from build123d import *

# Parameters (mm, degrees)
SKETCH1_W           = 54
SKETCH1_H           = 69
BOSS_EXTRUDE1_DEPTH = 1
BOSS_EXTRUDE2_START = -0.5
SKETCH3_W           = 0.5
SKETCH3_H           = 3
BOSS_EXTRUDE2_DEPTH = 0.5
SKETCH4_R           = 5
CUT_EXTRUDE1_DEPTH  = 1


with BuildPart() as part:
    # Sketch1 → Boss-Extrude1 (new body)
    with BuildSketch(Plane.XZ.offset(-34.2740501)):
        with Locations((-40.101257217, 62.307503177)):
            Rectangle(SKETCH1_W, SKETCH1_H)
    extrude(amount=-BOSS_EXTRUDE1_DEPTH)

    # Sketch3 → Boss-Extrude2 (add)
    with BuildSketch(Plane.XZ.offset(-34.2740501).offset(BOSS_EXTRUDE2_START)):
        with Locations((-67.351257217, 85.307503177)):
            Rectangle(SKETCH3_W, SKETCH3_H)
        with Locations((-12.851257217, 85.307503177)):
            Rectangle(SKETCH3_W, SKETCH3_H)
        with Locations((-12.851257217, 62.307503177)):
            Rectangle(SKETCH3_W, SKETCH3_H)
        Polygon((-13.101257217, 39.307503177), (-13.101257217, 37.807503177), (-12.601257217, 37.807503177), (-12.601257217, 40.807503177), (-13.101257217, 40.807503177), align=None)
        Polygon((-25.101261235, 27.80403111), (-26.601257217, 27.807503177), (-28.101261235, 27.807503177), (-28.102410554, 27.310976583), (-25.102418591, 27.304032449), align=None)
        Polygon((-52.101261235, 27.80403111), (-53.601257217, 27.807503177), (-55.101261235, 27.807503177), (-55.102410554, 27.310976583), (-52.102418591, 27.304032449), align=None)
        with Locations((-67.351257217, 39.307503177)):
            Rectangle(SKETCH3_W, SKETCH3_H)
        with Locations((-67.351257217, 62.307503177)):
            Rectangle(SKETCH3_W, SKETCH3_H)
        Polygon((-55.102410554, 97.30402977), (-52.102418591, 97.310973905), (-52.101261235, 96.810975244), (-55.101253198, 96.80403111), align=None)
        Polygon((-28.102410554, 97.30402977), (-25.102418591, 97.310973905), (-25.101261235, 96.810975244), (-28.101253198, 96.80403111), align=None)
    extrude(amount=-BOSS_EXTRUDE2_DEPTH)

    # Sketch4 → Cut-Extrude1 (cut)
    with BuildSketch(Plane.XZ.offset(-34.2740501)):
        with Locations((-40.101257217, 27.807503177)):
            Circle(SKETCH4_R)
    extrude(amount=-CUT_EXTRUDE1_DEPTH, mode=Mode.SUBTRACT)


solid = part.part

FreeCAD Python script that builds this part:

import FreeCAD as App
import Part
import Sketcher
from FreeCAD import Vector

doc = App.newDocument("Part")
body = doc.addObject("PartDesign::Body", "Body")

sketch1 = body.newObject("Sketcher::SketchObject", "Sketch")
sketch1.AttachmentSupport = (doc.getObject("XZ_Plane"), [""])
sketch1.MapMode = "FlatFace"
sketch1.AttachmentOffset = App.Placement(Vector(0, 0, -34.27405), App.Rotation())
sketch1.addGeometry([
    Part.LineSegment(Vector(-67.101257, 96.807503, 0), Vector(-67.101257, 27.807503, 0)),
    Part.LineSegment(Vector(-67.101257, 27.807503, 0), Vector(-13.101257, 27.807503, 0)),
    Part.LineSegment(Vector(-13.101257, 27.807503, 0), Vector(-13.101257, 96.807503, 0)),
    Part.LineSegment(Vector(-13.101257, 96.807503, 0), Vector(-67.101257, 96.807503, 0)),
], False)
sketch1.addConstraint([
    Sketcher.Constraint("Coincident", 0, 2, 1, 1),
    Sketcher.Constraint("Coincident", 1, 2, 2, 1),
    Sketcher.Constraint("Coincident", 2, 2, 3, 1),
    Sketcher.Constraint("Coincident", 3, 2, 0, 1),
    Sketcher.Constraint("Vertical", 0),
    Sketcher.Constraint("Horizontal", 1),
    Sketcher.Constraint("Vertical", 2),
    Sketcher.Constraint("Horizontal", 3),
    Sketcher.Constraint("DistanceX", 1, 1, 1, 2, 54.0),
    Sketcher.Constraint("DistanceY", 0, 2, 0, 1, 69.0),
    Sketcher.Constraint("DistanceX", 0, 2, -1, 1, 67.101257),
    Sketcher.Constraint("DistanceY", -1, 1, 0, 2, 27.807503),
])
pad1 = body.newObject("PartDesign::Pad", "Pad")
pad1.Profile = sketch1
pad1.Length = 1
pad1.Reversed = True

sketch2 = body.newObject("Sketcher::SketchObject", "Sketch001")
sketch2.AttachmentSupport = (doc.getObject("XZ_Plane"), [""])
sketch2.MapMode = "FlatFace"
sketch2.AttachmentOffset = App.Placement(Vector(0, 0, -34.77405), App.Rotation())
sketch2.addGeometry([
    Part.LineSegment(Vector(-67.601257, 86.807503, 0), Vector(-67.601257, 83.807503, 0)),
    Part.LineSegment(Vector(-67.601257, 83.807503, 0), Vector(-67.101257, 83.807503, 0)),
    Part.LineSegment(Vector(-67.101257, 83.807503, 0), Vector(-67.101257, 86.807503, 0)),
    Part.LineSegment(Vector(-67.101257, 86.807503, 0), Vector(-67.601257, 86.807503, 0)),
    Part.LineSegment(Vector(-13.101257, 86.807503, 0), Vector(-13.101257, 83.807503, 0)),
    Part.LineSegment(Vector(-13.101257, 83.807503, 0), Vector(-12.601257, 83.807503, 0)),
    Part.LineSegment(Vector(-12.601257, 83.807503, 0), Vector(-12.601257, 86.807503, 0)),
    Part.LineSegment(Vector(-12.601257, 86.807503, 0), Vector(-13.101257, 86.807503, 0)),
    Part.LineSegment(Vector(-13.101257, 63.807503, 0), Vector(-13.101257, 60.807503, 0)),
    Part.LineSegment(Vector(-13.101257, 60.807503, 0), Vector(-12.601257, 60.807503, 0)),
    Part.LineSegment(Vector(-12.601257, 60.807503, 0), Vector(-12.601257, 63.807503, 0)),
    Part.LineSegment(Vector(-12.601257, 63.807503, 0), Vector(-13.101257, 63.807503, 0)),
    Part.LineSegment(Vector(-13.101257, 37.807503, 0), Vector(-12.601257, 37.807503, 0)),
    Part.LineSegment(Vector(-12.601257, 37.807503, 0), Vector(-12.601257, 40.807503, 0)),
    Part.LineSegment(Vector(-12.601257, 40.807503, 0), Vector(-13.101257, 40.807503, 0)),
    Part.LineSegment(Vector(-13.101257, 40.807503, 0), Vector(-13.101257, 37.807503, 0)),
    Part.LineSegment(Vector(-25.101261, 27.804031, 0), Vector(-26.601257, 27.807503, 0)),
    Part.LineSegment(Vector(-26.601257, 27.807503, 0), Vector(-28.101261, 27.807503, 0)),
    Part.LineSegment(Vector(-28.101261, 27.807503, 0), Vector(-28.102411, 27.310977, 0)),
    Part.LineSegment(Vector(-28.102411, 27.310977, 0), Vector(-25.102419, 27.304032, 0)),
    Part.LineSegment(Vector(-25.102419, 27.304032, 0), Vector(-25.101261, 27.804031, 0)),
    Part.LineSegment(Vector(-52.101261, 27.804031, 0), Vector(-53.601257, 27.807503, 0)),
    Part.LineSegment(Vector(-53.601257, 27.807503, 0), Vector(-55.101261, 27.807503, 0)),
    Part.LineSegment(Vector(-55.101261, 27.807503, 0), Vector(-55.102411, 27.310977, 0)),
    Part.LineSegment(Vector(-55.102411, 27.310977, 0), Vector(-52.102419, 27.304032, 0)),
    Part.LineSegment(Vector(-52.102419, 27.304032, 0), Vector(-52.101261, 27.804031, 0)),
    Part.LineSegment(Vector(-67.601257, 40.807503, 0), Vector(-67.601257, 37.807503, 0)),
    Part.LineSegment(Vector(-67.601257, 37.807503, 0), Vector(-67.101257, 37.807503, 0)),
    Part.LineSegment(Vector(-67.101257, 37.807503, 0), Vector(-67.101257, 40.807503, 0)),
    Part.LineSegment(Vector(-67.101257, 40.807503, 0), Vector(-67.601257, 40.807503, 0)),
    Part.LineSegment(Vector(-67.601257, 63.807503, 0), Vector(-67.601257, 60.807503, 0)),
    Part.LineSegment(Vector(-67.601257, 60.807503, 0), Vector(-67.101257, 60.807503, 0)),
    Part.LineSegment(Vector(-67.101257, 60.807503, 0), Vector(-67.101257, 63.807503, 0)),
    Part.LineSegment(Vector(-67.101257, 63.807503, 0), Vector(-67.601257, 63.807503, 0)),
    Part.LineSegment(Vector(-52.102419, 97.310974, 0), Vector(-55.102411, 97.30403, 0)),
    Part.LineSegment(Vector(-55.102411, 97.30403, 0), Vector(-55.101253, 96.804031, 0)),
    Part.LineSegment(Vector(-55.101253, 96.804031, 0), Vector(-52.101261, 96.810975, 0)),
    Part.LineSegment(Vector(-52.101261, 96.810975, 0), Vector(-52.102419, 97.310974, 0)),
    Part.LineSegment(Vector(-25.102419, 97.310974, 0), Vector(-28.102411, 97.30403, 0)),
    Part.LineSegment(Vector(-28.102411, 97.30403, 0), Vector(-28.101253, 96.804031, 0)),
    Part.LineSegment(Vector(-28.101253, 96.804031, 0), Vector(-25.101261, 96.810975, 0)),
    Part.LineSegment(Vector(-25.101261, 96.810975, 0), Vector(-25.102419, 97.310974, 0)),
], False)
sketch2.addConstraint([
    Sketcher.Constraint("Coincident", 0, 2, 1, 1),
    Sketcher.Constraint("Coincident", 1, 2, 2, 1),
    Sketcher.Constraint("Coincident", 2, 2, 3, 1),
    Sketcher.Constraint("Coincident", 3, 2, 0, 1),
    Sketcher.Constraint("Coincident", 4, 2, 5, 1),
    Sketcher.Constraint("Coincident", 5, 2, 6, 1),
    Sketcher.Constraint("Coincident", 6, 2, 7, 1),
    Sketcher.Constraint("Coincident", 7, 2, 4, 1),
    Sketcher.Constraint("Coincident", 8, 2, 9, 1),
    Sketcher.Constraint("Coincident", 9, 2, 10, 1),
    Sketcher.Constraint("Coincident", 10, 2, 11, 1),
    Sketcher.Constraint("Coincident", 11, 2, 8, 1),
    Sketcher.Constraint("Coincident", 12, 2, 13, 1),
    Sketcher.Constraint("Coincident", 13, 2, 14, 1),
    Sketcher.Constraint("Coincident", 14, 2, 15, 1),
    Sketcher.Constraint("Coincident", 15, 2, 12, 1),
    Sketcher.Constraint("Coincident", 16, 2, 17, 1),
    Sketcher.Constraint("Coincident", 17, 2, 18, 1),
    Sketcher.Constraint("Coincident", 18, 2, 19, 1),
    Sketcher.Constraint("Coincident", 19, 2, 20, 1),
    Sketcher.Constraint("Coincident", 20, 2, 16, 1),
    Sketcher.Constraint("Coincident", 21, 2, 22, 1),
    Sketcher.Constraint("Coincident", 22, 2, 23, 1),
    Sketcher.Constraint("Coincident", 23, 2, 24, 1),
    Sketcher.Constraint("Coincident", 24, 2, 25, 1),
    Sketcher.Constraint("Coincident", 25, 2, 21, 1),
    Sketcher.Constraint("Coincident", 26, 2, 27, 1),
    Sketcher.Constraint("Coincident", 27, 2, 28, 1),
    Sketcher.Constraint("Coincident", 28, 2, 29, 1),
    Sketcher.Constraint("Coincident", 29, 2, 26, 1),
    Sketcher.Constraint("Coincident", 30, 2, 31, 1),
    Sketcher.Constraint("Coincident", 31, 2, 32, 1),
    Sketcher.Constraint("Coincident", 32, 2, 33, 1),
    Sketcher.Constraint("Coincident", 33, 2, 30, 1),
    Sketcher.Constraint("Coincident", 34, 2, 35, 1),
    Sketcher.Constraint("Coincident", 35, 2, 36, 1),
    Sketcher.Constraint("Coincident", 36, 2, 37, 1),
    Sketcher.Constraint("Coincident", 37, 2, 34, 1),
    Sketcher.Constraint("Coincident", 38, 2, 39, 1),
    Sketcher.Constraint("Coincident", 39, 2, 40, 1),
    Sketcher.Constraint("Coincident", 40, 2, 41, 1),
    Sketcher.Constraint("Coincident", 41, 2, 38, 1),
    Sketcher.Constraint("Vertical", 0),
    Sketcher.Constraint("Horizontal", 1),
    Sketcher.Constraint("Vertical", 2),
    Sketcher.Constraint("Horizontal", 3),
    Sketcher.Constraint("Vertical", 4),
    Sketcher.Constraint("Horizontal", 5),
    Sketcher.Constraint("Vertical", 6),
    Sketcher.Constraint("Horizontal", 7),
    Sketcher.Constraint("Vertical", 8),
    Sketcher.Constraint("Horizontal", 9),
    Sketcher.Constraint("Vertical", 10),
    Sketcher.Constraint("Horizontal", 11),
    Sketcher.Constraint("Horizontal", 12),
    Sketcher.Constraint("Vertical", 13),
    Sketcher.Constraint("Horizontal", 14),
    Sketcher.Constraint("Vertical", 15),
    Sketcher.Constraint("Horizontal", 17),
    Sketcher.Constraint("Horizontal", 22),
    Sketcher.Constraint("Vertical", 26),
    Sketcher.Constraint("Horizontal", 27),
    Sketcher.Constraint("Vertical", 28),
    Sketcher.Constraint("Horizontal", 29),
    Sketcher.Constraint("Vertical", 30),
    Sketcher.Constraint("Horizontal", 31),
    Sketcher.Constraint("Vertical", 32),
    Sketcher.Constraint("Horizontal", 33),
    Sketcher.Constraint("Perpendicular", 16, 18),
    Sketcher.Constraint("Perpendicular", 18, 19),
    Sketcher.Constraint("Perpendicular", 19, 20),
    Sketcher.Constraint("Perpendicular", 20, 21),
    Sketcher.Constraint("Perpendicular", 21, 23),
    Sketcher.Constraint("Perpendicular", 23, 24),
    Sketcher.Constraint("Perpendicular", 24, 25),
    Sketcher.Constraint("Perpendicular", 34, 35),
    Sketcher.Constraint("Perpendicular", 35, 36),
    Sketcher.Constraint("Perpendicular", 36, 37),
    Sketcher.Constraint("Perpendicular", 37, 38),
    Sketcher.Constraint("Perpendicular", 38, 39),
    Sketcher.Constraint("Perpendicular", 39, 40),
    Sketcher.Constraint("Perpendicular", 40, 41),
    Sketcher.Constraint("Horizontal", 1, 2, 4, 2),
    Sketcher.Constraint("Horizontal", 3, 2, 6, 2),
    Sketcher.Constraint("Horizontal", 17, 2, 21, 2),
    Sketcher.Constraint("Horizontal", 18, 2, 23, 2),
    Sketcher.Constraint("Horizontal", 20, 2, 25, 2),
    Sketcher.Constraint("Horizontal", 15, 2, 26, 2),
    Sketcher.Constraint("Horizontal", 14, 2, 28, 2),
    Sketcher.Constraint("Horizontal", 9, 2, 30, 2),
    Sketcher.Constraint("Horizontal", 11, 2, 32, 2),
    Sketcher.Constraint("Horizontal", 34, 2, 38, 2),
    Sketcher.Constraint("Horizontal", 35, 2, 39, 2),
    Sketcher.Constraint("Vertical", 7, 2, 8, 2),
    Sketcher.Constraint("Vertical", 6, 2, 9, 2),
    Sketcher.Constraint("Vertical", 10, 2, 12, 2),
    Sketcher.Constraint("Vertical", 11, 2, 14, 2),
    Sketcher.Constraint("Vertical", 3, 2, 26, 2),
    Sketcher.Constraint("Vertical", 2, 2, 27, 2),
    Sketcher.Constraint("Vertical", 29, 2, 30, 2),
    Sketcher.Constraint("Vertical", 28, 2, 31, 2),
    Sketcher.Constraint("Vertical", 23, 2, 34, 2),
    Sketcher.Constraint("Vertical", 25, 2, 36, 2),
    Sketcher.Constraint("Vertical", 24, 2, 37, 2),
    Sketcher.Constraint("Vertical", 18, 2, 38, 2),
    Sketcher.Constraint("Vertical", 20, 2, 40, 2),
    Sketcher.Constraint("Equal", 3, 5),
    Sketcher.Constraint("Equal", 17, 22),
    Sketcher.Constraint("Equal", 6, 8),
    Sketcher.Constraint("Equal", 10, 13),
    Sketcher.Constraint("Equal", 25, 35),
    Sketcher.Constraint("DistanceY", 0, 2, 0, 1, 3.0),
    Sketcher.Constraint("Distance", 19, 3.0),
    Sketcher.Constraint("DistanceX", 1, 1, 1, 2, 0.5),
    Sketcher.Constraint("DistanceX", 1, 2, 4, 2, 54.0),
    Sketcher.Constraint("DistanceY", 8, 2, 4, 2, 23.0),
    Sketcher.Constraint("DistanceY", 12, 2, 9, 2, 23.0),
    Sketcher.Constraint("DistanceY", 16, 2, 15, 2, 10.0),
    Sketcher.Constraint("DistanceX", 16, 2, 12, 2, 14.0),
    Sketcher.Constraint("DistanceX", 21, 2, 16, 2, 27.0),
    Sketcher.Constraint("Distance", 16, 1.5),
    Sketcher.Constraint("Distance", 20, 0.5),
    Sketcher.Constraint("DistanceX", 17, 2, -1, 1, 28.101261),
    Sketcher.Constraint("DistanceX", 18, 2, -1, 1, 28.102411),
    Sketcher.Constraint("DistanceY", -1, 1, 20, 2, 27.804031),
    Sketcher.Constraint("DistanceY", -1, 1, 34, 2, 97.30403),
])
pad2 = body.newObject("PartDesign::Pad", "Pad001")
pad2.Profile = sketch2
pad2.Length = 0.5
pad2.Reversed = True

sketch3 = body.newObject("Sketcher::SketchObject", "Sketch002")
sketch3.AttachmentSupport = (doc.getObject("XZ_Plane"), [""])
sketch3.MapMode = "FlatFace"
sketch3.AttachmentOffset = App.Placement(Vector(0, 0, -34.27405), App.Rotation())
sketch3.addGeometry(Part.Circle(Vector(-40.101257, 27.807503, 0), Vector(0, 0, 1), 5), False)
sketch3.addConstraint([
    Sketcher.Constraint("Diameter", 0, 10.0),
    Sketcher.Constraint("DistanceX", 0, 3, -1, 1, 40.101257),
    Sketcher.Constraint("DistanceY", -1, 1, 0, 3, 27.807503),
])
pocket1 = body.newObject("PartDesign::Pocket", "Pocket")
pocket1.Profile = sketch3
pocket1.Length = 1

doc.recompute()
